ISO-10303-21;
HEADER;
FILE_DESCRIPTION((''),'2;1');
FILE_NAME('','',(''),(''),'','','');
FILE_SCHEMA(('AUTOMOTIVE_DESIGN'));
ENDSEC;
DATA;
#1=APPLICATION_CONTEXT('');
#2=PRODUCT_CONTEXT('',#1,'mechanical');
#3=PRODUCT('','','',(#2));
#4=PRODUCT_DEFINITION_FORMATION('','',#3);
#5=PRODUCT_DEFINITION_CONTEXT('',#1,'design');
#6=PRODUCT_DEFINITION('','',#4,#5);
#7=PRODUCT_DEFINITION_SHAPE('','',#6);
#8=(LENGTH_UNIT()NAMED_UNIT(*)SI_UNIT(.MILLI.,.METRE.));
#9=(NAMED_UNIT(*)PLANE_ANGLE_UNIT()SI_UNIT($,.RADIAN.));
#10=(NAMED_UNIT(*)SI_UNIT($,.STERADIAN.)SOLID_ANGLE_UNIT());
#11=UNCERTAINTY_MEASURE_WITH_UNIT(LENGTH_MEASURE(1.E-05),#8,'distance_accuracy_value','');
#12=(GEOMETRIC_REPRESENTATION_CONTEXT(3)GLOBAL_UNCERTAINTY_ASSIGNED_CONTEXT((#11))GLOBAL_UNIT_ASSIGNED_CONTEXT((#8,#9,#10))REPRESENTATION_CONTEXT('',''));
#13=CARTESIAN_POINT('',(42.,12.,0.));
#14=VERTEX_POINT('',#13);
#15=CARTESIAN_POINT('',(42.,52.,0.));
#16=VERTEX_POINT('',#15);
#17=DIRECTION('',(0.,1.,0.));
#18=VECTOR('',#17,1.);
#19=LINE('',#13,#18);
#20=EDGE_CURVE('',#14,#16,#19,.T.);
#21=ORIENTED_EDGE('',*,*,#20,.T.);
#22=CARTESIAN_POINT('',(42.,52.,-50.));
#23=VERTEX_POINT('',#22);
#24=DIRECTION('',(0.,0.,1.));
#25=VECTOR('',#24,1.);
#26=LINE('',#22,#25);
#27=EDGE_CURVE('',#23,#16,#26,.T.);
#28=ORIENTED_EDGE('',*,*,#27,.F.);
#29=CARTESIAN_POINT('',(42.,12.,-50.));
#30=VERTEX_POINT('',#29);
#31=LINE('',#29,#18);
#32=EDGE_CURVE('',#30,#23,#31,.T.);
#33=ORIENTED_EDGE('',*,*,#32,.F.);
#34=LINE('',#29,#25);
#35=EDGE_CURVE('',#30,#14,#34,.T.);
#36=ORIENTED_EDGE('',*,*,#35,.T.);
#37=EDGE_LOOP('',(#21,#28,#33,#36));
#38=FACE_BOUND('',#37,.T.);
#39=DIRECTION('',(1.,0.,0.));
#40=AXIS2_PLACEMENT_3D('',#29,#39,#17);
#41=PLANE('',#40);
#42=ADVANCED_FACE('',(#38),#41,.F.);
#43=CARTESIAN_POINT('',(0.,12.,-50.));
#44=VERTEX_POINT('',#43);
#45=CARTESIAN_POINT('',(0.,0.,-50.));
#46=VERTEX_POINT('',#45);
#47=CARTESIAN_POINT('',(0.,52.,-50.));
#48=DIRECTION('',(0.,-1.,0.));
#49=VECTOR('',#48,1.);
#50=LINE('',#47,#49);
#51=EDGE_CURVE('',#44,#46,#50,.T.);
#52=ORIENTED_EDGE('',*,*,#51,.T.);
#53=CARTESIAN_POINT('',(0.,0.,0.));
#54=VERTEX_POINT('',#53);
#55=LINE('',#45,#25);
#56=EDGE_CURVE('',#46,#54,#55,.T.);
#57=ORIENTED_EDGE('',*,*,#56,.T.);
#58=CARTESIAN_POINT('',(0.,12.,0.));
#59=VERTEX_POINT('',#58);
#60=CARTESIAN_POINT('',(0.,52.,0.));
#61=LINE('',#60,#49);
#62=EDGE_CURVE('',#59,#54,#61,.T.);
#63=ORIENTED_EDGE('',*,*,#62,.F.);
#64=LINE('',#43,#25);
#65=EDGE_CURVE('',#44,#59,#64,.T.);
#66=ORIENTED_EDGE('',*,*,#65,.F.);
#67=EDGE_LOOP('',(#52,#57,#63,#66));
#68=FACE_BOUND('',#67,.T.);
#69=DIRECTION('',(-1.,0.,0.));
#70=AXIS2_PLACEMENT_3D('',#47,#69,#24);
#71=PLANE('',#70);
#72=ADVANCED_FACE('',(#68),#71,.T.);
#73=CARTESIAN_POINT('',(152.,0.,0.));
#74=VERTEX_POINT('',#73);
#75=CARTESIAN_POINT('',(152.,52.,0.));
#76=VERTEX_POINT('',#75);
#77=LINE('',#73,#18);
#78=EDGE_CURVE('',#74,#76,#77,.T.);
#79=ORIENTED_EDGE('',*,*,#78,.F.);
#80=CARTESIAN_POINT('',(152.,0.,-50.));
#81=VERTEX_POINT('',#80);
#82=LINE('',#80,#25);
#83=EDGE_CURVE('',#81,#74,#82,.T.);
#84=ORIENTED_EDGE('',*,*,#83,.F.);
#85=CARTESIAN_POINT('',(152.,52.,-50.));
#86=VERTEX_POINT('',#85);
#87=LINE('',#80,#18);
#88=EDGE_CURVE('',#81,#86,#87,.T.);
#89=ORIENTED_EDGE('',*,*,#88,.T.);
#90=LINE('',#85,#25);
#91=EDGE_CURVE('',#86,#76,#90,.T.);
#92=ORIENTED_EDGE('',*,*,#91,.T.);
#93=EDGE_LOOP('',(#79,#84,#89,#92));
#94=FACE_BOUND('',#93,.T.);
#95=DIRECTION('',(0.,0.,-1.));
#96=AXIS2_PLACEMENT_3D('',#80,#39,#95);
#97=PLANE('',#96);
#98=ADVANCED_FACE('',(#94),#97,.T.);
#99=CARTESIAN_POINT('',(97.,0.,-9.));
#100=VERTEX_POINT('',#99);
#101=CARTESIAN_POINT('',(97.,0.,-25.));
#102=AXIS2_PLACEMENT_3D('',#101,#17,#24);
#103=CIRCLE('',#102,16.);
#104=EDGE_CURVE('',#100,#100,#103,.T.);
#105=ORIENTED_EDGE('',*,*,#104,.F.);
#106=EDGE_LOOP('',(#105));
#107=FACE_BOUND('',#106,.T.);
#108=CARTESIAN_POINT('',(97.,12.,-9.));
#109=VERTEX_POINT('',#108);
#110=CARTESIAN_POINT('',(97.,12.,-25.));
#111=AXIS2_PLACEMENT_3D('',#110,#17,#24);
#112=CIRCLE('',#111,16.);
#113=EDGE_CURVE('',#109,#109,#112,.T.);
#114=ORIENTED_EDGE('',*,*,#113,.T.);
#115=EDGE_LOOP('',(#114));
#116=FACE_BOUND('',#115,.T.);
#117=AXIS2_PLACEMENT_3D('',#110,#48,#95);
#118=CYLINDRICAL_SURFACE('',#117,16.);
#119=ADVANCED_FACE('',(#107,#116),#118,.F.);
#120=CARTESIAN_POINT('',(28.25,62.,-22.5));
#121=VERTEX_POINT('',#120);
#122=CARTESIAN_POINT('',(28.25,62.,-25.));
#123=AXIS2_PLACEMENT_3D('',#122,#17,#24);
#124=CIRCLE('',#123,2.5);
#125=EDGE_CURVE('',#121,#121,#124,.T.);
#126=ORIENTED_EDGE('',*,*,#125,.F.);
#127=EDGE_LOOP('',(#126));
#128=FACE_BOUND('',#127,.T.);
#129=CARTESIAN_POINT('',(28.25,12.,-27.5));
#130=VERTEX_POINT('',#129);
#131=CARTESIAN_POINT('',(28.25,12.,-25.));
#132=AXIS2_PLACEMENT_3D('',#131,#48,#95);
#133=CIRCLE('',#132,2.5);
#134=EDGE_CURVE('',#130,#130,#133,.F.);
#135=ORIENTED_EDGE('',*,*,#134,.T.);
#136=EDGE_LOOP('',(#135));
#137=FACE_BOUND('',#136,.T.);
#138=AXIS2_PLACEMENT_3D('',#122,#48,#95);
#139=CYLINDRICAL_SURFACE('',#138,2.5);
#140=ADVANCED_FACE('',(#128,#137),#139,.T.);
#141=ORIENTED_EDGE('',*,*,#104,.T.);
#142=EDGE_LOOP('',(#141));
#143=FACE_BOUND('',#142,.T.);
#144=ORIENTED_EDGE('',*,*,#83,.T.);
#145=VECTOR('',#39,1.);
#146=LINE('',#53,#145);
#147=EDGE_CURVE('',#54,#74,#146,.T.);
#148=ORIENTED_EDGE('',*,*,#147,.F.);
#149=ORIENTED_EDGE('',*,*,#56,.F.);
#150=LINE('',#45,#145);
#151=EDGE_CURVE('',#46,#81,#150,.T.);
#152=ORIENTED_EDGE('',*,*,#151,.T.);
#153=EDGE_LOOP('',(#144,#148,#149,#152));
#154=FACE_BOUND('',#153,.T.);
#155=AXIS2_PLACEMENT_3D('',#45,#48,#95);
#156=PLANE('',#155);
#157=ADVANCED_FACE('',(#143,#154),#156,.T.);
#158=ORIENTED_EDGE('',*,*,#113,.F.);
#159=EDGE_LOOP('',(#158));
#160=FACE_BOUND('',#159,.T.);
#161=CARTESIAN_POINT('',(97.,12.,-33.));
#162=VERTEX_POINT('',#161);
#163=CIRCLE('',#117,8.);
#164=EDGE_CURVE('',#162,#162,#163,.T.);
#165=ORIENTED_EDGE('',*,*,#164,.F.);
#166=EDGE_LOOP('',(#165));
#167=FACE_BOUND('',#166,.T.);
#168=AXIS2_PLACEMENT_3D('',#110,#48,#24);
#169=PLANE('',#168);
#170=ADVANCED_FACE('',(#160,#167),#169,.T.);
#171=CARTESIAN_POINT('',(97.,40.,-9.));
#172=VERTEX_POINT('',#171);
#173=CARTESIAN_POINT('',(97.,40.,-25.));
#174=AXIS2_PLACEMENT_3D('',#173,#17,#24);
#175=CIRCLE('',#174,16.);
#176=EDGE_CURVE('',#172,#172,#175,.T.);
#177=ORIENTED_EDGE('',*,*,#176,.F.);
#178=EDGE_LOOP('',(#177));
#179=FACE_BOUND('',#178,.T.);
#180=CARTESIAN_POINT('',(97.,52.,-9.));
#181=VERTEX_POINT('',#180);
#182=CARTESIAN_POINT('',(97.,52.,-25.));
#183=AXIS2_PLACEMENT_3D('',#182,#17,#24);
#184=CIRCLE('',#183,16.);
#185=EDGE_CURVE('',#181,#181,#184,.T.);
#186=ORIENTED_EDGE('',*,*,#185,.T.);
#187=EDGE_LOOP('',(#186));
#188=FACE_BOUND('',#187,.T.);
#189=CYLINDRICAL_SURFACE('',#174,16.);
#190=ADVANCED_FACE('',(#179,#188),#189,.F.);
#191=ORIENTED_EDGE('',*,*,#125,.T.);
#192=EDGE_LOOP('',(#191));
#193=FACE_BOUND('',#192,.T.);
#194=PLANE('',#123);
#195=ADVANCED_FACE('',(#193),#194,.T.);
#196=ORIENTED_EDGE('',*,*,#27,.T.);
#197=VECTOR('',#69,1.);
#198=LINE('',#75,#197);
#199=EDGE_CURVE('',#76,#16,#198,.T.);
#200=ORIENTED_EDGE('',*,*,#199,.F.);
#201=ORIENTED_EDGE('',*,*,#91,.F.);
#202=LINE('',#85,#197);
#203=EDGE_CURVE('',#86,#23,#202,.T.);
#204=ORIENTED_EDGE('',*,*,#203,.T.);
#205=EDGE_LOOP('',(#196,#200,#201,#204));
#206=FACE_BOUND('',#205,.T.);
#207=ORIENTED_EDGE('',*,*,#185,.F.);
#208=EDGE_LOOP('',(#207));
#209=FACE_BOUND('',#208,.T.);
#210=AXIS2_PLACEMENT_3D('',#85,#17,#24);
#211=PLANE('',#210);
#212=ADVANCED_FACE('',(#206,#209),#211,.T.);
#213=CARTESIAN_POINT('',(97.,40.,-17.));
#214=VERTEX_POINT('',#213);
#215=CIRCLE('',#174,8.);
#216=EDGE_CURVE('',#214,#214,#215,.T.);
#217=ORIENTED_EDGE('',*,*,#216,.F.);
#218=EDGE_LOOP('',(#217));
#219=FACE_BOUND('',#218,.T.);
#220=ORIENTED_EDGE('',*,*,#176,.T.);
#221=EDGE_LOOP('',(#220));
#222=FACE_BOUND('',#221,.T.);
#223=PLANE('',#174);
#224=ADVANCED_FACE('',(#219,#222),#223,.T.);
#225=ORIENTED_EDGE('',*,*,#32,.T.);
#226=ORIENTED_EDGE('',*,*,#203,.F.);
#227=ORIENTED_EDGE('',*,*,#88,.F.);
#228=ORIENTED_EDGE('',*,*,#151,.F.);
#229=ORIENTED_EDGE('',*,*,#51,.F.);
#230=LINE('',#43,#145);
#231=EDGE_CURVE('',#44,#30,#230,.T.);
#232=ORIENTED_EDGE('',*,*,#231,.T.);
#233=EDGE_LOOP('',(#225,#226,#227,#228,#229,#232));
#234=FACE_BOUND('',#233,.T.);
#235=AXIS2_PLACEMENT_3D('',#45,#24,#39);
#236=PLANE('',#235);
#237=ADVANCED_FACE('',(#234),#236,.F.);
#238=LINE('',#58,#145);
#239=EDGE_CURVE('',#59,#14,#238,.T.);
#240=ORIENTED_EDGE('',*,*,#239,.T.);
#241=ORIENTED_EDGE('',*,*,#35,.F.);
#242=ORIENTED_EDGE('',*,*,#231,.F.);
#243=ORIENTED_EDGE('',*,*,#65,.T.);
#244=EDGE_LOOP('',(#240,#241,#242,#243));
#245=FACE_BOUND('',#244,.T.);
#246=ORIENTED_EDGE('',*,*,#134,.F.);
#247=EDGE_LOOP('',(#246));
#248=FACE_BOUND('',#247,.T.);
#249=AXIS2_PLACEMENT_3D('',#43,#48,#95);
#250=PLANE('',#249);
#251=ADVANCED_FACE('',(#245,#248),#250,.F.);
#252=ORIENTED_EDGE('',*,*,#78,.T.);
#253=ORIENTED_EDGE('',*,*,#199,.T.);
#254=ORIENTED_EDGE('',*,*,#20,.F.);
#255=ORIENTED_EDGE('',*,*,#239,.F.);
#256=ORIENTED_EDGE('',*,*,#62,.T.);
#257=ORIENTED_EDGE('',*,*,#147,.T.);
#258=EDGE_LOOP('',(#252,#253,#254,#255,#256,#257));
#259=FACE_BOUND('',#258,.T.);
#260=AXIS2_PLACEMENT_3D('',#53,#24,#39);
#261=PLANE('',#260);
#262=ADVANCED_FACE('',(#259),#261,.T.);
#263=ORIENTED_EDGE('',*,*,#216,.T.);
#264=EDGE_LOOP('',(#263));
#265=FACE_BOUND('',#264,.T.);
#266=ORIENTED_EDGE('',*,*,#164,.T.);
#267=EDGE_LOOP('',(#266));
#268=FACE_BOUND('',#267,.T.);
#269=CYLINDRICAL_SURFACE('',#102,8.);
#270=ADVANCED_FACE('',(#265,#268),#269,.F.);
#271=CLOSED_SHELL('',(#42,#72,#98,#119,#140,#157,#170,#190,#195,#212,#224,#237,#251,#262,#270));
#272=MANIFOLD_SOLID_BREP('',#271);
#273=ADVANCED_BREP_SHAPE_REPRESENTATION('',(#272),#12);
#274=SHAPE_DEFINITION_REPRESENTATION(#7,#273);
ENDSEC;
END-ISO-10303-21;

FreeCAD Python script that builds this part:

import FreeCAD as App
import Part
import Sketcher
from FreeCAD import Vector
Q = App.Units.Quantity


def add_polygon(sketch, points):
    """Adds a closed chain of lines whose ends are joined by coincident constraints."""
    first, n = sketch.GeometryCount, len(points)
    for a, b in zip(points, points[1:] + points[:1]):
        sketch.addGeometry(Part.LineSegment(App.Vector(*a, 0), App.Vector(*b, 0)), False)
    for i in range(n):
        sketch.addConstraint(Sketcher.Constraint("Coincident", first + i, 2, first + (i + 1) % n, 1))

doc = App.newDocument("Part")
body = doc.addObject("PartDesign::Body", "Body")

sketch1 = doc.addObject("Sketcher::SketchObject", "Sketch")
body.addObject(sketch1)
sketch1.AttachmentSupport = (doc.XY_Plane, [""])
sketch1.MapMode = "FlatFace"
add_polygon(sketch1, [(0, 52), (0, 0), (152, 0), (152, 52)])
sketch1.addConstraint(Sketcher.Constraint("Vertical", 0))
sketch1.addConstraint(Sketcher.Constraint("Horizontal", 1))
sketch1.addConstraint(Sketcher.Constraint("Vertical", 2))
sketch1.addConstraint(Sketcher.Constraint("Horizontal", 3))
sketch1.addConstraint(Sketcher.Constraint("Coincident", 0, 2, -1, 1))
sketch1.addConstraint(Sketcher.Constraint("DistanceX", 1, 1, 1, 2, Q("152 mm")))
sketch1.addConstraint(Sketcher.Constraint("DistanceY", 0, 2, 0, 1, Q("52 mm")))
pad1 = doc.addObject("PartDesign::Pad", "Pad")
body.addObject(pad1)
pad1.Profile = sketch1
pad1.Length = 50
pad1.Reversed = True

sketch2 = doc.addObject("Sketcher::SketchObject", "Sketch001")
body.addObject(sketch2)
sketch2.AttachmentSupport = (doc.XY_Plane, [""])
sketch2.MapMode = "FlatFace"
add_polygon(sketch2, [(0, 52), (0, 12), (42, 12), (42, 52)])
sketch2.addConstraint(Sketcher.Constraint("Vertical", 0))
sketch2.addConstraint(Sketcher.Constraint("Horizontal", 1))
sketch2.addConstraint(Sketcher.Constraint("Vertical", 2))
sketch2.addConstraint(Sketcher.Constraint("Horizontal", 3))
sketch2.addConstraint(Sketcher.Constraint("PointOnObject", 0, 2, -2))
sketch2.addConstraint(Sketcher.Constraint("DistanceX", 1, 1, 1, 2, Q("42 mm")))
sketch2.addConstraint(Sketcher.Constraint("DistanceY", 0, 2, 0, 1, Q("40 mm")))
sketch2.addConstraint(Sketcher.Constraint("DistanceY", -1, 1, 0, 2, Q("12 mm")))
pocket1 = doc.addObject("PartDesign::Pocket", "Pocket")
body.addObject(pocket1)
pocket1.Profile = sketch2
pocket1.Type = "ThroughAll"

sketch3 = doc.addObject("Sketcher::SketchObject", "Sketch002")
body.addObject(sketch3)
sketch3.AttachmentSupport = (doc.XZ_Plane, [""])
sketch3.MapMode = "FlatFace"
sketch3.AttachmentOffset = App.Placement(Vector(0, 0, -52), App.Rotation())
sketch3.addGeometry(Part.Circle(Vector(97, -25, 0), Vector(0, 0, 1), 16), False)
sketch3.addConstraint(Sketcher.Constraint("Diameter", 0, Q("32 mm")))
sketch3.addConstraint(Sketcher.Constraint("DistanceX", -1, 1, 0, 3, Q("97 mm")))
sketch3.addConstraint(Sketcher.Constraint("DistanceY", 0, 3, -1, 1, Q("25 mm")))
pocket2 = doc.addObject("PartDesign::Pocket", "Pocket001")
body.addObject(pocket2)
pocket2.Profile = sketch3
pocket2.Length = 12
pocket2.Reversed = True
doc.recompute()

datumplane = doc.addObject("PartDesign::Plane", "DatumPlane")
body.addObject(datumplane)
datumplane.AttachmentSupport = (doc.XZ_Plane, [""])
datumplane.MapMode = "FlatFace"
datumplane.AttachmentOffset = App.Placement(Vector(0, 0, -26), App.Rotation())
mirrored = doc.addObject("PartDesign::Mirrored", "Mirrored")
body.addObject(mirrored)
mirrored.Originals = [pocket2]
mirrored.MirrorPlane = (datumplane, [""])
body.Tip = mirrored

sketch4 = doc.addObject("Sketcher::SketchObject", "Sketch003")
body.addObject(sketch4)
sketch4.AttachmentSupport = (doc.XZ_Plane, [""])
sketch4.MapMode = "FlatFace"
sketch4.AttachmentOffset = App.Placement(Vector(0, 0, -40), App.Rotation())
sketch4.addGeometry(Part.Circle(Vector(97, -25, 0), Vector(0, 0, 1), 8), False)
sketch4.addConstraint(Sketcher.Constraint("Diameter", 0, Q("16 mm")))
sketch4.addConstraint(Sketcher.Constraint("DistanceX", -1, 1, 0, 3, Q("97 mm")))
sketch4.addConstraint(Sketcher.Constraint("DistanceY", 0, 3, -1, 1, Q("25 mm")))
pocket3 = doc.addObject("PartDesign::Pocket", "Pocket002")
body.addObject(pocket3)
pocket3.Profile = sketch4
pocket3.Type = "ThroughAll"
pocket3.Reversed = True

sketch5 = doc.addObject("Sketcher::SketchObject", "Sketch004")
body.addObject(sketch5)
sketch5.AttachmentSupport = (doc.XZ_Plane, [""])
sketch5.MapMode = "FlatFace"
sketch5.AttachmentOffset = App.Placement(Vector(0, 0, -52), App.Rotation())
sketch5.addGeometry(Part.Circle(Vector(28.2, -25, 0), Vector(0, 0, 1), 2.5), False)
sketch5.addConstraint(Sketcher.Constraint("Diameter", 0, Q("5 mm")))
sketch5.addConstraint(Sketcher.Constraint("DistanceY", 0, 3, -1, 1, Q("25 mm")))
sketch5.addConstraint(Sketcher.Constraint("DistanceX", -1, 1, 0, 3, Q("28.25 mm")))
pad2 = doc.addObject("PartDesign::Pad", "Pad001")
body.addObject(pad2)
pad2.Profile = sketch5
pad2.Type = "TwoLengths"
pad2.Length = 10
pad2.Length2 = 40
pad2.Reversed = True

doc.recompute()
